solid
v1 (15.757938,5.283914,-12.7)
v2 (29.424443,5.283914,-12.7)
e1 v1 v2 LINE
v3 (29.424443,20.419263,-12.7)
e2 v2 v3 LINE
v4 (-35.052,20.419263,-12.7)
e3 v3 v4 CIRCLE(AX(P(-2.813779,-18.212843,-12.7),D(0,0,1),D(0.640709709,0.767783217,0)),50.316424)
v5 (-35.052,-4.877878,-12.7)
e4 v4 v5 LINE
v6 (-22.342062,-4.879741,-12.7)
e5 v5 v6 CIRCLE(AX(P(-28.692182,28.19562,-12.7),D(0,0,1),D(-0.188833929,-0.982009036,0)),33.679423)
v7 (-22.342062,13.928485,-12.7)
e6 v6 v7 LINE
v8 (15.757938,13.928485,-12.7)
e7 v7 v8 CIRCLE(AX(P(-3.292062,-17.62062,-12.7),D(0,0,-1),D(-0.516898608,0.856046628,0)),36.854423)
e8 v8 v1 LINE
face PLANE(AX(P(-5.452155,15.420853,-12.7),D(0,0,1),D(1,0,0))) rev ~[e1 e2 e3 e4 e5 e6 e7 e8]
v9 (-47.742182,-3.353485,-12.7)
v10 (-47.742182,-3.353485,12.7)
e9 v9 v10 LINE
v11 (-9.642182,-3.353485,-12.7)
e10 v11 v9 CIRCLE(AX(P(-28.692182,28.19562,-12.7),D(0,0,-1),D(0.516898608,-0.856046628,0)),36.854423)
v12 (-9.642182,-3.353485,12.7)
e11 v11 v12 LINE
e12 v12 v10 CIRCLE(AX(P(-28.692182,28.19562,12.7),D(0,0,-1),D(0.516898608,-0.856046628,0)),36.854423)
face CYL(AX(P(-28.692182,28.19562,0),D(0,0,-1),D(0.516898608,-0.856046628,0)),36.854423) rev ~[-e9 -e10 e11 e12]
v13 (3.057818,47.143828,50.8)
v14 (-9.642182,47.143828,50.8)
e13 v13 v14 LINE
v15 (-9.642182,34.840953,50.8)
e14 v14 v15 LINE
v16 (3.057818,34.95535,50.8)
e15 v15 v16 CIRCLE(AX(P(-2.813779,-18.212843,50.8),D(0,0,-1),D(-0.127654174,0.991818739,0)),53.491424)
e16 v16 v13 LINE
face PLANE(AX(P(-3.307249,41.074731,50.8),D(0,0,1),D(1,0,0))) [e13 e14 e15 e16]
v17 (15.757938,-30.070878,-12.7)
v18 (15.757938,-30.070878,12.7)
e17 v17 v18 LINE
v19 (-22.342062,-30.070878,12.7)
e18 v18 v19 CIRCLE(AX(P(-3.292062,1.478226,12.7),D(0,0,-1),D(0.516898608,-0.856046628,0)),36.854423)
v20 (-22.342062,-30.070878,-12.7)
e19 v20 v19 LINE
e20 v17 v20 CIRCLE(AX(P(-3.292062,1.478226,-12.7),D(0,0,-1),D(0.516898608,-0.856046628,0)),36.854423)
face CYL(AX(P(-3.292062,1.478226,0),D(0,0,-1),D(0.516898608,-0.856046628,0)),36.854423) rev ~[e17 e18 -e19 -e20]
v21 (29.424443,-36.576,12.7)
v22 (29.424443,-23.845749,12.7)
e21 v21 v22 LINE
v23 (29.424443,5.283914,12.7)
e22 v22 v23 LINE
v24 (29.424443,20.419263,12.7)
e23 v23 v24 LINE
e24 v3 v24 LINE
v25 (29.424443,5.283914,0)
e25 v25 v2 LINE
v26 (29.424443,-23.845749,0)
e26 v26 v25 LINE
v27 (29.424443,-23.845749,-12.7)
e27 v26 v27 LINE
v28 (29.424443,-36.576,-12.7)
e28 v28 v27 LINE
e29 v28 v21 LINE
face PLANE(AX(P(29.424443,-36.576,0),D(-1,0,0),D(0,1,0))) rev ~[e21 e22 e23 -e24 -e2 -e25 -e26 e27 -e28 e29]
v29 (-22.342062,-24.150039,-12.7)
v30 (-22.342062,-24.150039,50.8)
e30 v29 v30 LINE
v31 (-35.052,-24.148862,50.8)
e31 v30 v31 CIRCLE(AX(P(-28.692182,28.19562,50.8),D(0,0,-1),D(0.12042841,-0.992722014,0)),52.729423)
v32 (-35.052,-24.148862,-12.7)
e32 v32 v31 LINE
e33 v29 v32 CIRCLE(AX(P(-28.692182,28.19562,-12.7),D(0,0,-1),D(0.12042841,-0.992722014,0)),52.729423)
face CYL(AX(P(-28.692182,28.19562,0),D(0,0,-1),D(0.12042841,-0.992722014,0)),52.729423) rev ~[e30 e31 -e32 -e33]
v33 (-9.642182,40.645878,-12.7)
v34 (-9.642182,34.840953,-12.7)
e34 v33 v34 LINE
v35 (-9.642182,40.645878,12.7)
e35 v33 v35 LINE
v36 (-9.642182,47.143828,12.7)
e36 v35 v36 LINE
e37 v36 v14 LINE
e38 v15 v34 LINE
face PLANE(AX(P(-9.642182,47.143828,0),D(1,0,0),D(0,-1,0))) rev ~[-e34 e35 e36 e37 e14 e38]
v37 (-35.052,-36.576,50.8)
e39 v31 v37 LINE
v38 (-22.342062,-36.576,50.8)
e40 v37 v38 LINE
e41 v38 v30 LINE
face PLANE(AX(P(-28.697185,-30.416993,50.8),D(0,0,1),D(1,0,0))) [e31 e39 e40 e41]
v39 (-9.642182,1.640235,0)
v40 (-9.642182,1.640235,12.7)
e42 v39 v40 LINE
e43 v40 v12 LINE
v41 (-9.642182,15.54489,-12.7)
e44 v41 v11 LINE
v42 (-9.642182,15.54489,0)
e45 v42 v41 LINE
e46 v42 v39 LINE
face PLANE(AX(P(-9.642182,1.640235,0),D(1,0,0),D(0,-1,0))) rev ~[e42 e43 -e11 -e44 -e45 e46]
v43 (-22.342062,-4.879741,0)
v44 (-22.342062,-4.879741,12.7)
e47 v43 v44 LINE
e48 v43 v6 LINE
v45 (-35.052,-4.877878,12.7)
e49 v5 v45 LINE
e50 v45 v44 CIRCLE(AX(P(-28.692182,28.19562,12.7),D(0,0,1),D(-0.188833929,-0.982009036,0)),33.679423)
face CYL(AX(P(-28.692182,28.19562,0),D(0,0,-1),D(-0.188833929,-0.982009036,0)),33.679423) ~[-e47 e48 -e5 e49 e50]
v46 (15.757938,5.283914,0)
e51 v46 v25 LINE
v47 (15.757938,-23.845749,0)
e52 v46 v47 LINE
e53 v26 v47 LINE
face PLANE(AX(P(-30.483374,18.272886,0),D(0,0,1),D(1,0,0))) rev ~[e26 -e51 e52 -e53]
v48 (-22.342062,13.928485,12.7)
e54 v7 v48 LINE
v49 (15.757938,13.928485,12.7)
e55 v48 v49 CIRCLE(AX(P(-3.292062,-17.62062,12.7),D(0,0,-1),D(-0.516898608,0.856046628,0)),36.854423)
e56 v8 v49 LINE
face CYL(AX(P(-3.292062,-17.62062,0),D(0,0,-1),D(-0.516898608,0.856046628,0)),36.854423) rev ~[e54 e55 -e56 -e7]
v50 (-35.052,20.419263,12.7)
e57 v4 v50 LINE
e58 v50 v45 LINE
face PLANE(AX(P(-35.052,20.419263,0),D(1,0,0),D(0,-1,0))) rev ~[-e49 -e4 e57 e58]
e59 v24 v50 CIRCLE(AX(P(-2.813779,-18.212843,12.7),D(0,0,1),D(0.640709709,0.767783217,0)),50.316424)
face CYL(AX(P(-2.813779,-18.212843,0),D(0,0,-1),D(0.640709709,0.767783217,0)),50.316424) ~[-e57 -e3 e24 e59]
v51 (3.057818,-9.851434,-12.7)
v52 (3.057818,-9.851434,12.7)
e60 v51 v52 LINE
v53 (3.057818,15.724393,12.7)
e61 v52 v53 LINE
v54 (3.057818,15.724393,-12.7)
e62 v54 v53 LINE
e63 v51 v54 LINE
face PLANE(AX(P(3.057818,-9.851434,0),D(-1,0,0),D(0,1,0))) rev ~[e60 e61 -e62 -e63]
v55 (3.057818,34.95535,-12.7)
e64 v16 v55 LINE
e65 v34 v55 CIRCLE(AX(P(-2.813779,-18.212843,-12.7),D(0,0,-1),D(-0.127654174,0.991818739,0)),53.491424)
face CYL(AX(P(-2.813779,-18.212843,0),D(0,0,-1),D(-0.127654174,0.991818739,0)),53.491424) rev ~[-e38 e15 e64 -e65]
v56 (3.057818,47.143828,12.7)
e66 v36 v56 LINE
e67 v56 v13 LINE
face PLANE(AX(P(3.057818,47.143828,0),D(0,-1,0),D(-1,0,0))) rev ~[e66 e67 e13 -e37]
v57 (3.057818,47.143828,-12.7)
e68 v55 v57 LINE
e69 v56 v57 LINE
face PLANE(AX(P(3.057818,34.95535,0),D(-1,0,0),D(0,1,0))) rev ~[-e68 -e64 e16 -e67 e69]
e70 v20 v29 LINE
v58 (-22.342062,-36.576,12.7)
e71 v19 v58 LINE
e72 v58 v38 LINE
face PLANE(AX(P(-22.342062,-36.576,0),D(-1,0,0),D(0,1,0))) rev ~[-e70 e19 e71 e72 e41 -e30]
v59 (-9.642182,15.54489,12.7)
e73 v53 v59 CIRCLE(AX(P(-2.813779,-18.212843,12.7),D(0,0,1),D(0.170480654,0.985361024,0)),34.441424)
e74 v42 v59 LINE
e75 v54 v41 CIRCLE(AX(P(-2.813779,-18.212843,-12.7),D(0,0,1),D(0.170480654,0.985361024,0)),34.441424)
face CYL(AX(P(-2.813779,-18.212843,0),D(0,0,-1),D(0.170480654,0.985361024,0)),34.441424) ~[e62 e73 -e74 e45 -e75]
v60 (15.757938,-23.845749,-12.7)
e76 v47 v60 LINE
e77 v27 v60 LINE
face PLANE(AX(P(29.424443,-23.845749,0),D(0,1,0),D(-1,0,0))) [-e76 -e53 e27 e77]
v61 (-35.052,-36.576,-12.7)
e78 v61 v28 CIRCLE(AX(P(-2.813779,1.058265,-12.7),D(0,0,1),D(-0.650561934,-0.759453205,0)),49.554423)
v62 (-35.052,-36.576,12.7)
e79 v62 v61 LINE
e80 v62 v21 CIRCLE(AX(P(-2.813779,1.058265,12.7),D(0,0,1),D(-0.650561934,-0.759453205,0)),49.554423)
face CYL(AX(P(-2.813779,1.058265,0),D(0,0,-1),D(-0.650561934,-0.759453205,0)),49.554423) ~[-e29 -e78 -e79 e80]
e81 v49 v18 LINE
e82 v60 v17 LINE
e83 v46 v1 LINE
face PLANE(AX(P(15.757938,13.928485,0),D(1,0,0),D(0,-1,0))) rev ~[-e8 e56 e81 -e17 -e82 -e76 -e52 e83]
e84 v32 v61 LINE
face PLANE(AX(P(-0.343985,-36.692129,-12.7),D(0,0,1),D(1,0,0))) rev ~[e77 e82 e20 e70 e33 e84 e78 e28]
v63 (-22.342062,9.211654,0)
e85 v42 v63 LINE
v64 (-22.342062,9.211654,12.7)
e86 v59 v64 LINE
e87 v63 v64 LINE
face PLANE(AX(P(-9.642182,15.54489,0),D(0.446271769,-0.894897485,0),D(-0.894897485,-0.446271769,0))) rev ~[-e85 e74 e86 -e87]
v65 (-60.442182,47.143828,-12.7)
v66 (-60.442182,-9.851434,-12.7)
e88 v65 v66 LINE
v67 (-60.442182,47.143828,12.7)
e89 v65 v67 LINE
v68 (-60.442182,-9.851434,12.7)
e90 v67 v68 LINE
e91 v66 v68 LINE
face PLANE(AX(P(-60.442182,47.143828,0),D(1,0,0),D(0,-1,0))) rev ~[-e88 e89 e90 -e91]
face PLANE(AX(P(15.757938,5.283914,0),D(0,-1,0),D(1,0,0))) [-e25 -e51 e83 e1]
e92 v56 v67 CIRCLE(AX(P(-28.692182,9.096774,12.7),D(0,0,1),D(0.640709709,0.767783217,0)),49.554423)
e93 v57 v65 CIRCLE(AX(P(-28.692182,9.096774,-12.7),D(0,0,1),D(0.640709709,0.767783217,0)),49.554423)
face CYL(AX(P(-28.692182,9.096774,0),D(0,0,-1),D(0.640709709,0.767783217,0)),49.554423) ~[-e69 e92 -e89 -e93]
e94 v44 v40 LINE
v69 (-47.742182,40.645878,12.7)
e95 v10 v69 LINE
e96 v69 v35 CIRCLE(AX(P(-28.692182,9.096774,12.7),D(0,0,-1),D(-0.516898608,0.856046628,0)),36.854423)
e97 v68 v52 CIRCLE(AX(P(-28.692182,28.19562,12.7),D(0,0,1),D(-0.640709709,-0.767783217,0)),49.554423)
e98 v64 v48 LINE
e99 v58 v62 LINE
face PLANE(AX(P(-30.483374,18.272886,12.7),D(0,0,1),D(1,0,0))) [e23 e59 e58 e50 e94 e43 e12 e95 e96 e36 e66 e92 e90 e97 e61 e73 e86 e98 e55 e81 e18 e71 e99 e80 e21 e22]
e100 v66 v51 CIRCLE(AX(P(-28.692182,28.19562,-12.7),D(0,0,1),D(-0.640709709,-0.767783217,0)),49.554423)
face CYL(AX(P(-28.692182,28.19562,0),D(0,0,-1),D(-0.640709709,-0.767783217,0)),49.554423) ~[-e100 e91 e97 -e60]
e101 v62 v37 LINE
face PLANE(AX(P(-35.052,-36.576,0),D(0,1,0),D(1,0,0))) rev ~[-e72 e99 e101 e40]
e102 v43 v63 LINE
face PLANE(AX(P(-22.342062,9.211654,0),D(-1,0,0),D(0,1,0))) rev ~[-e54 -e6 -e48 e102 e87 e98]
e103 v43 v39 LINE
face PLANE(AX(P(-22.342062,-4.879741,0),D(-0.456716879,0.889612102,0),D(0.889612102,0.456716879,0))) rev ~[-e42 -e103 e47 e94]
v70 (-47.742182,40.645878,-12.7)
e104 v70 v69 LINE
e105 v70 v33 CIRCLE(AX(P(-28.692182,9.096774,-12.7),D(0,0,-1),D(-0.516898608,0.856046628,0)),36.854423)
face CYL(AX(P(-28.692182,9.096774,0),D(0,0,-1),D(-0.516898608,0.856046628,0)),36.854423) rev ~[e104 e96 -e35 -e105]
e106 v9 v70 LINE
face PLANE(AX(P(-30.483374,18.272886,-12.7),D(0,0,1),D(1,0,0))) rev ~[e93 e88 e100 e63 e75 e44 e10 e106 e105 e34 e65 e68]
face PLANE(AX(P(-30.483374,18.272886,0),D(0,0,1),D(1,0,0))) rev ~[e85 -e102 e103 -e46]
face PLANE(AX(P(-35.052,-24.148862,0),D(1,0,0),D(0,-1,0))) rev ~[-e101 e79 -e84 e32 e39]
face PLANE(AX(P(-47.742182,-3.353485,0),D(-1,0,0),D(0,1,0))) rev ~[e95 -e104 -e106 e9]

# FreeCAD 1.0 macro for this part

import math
import FreeCAD as App
import Part
import Sketcher
from FreeCAD import Vector
Q = App.Units.Quantity

doc = App.newDocument("Part")
params = doc.addObject("Spreadsheet::Sheet", "Params")
for row, (alias, value) in enumerate([
    ("pad1_length", "0.5 in"),
    ("sketch2_width", "0.5 in"),
    ("pad2_length", "2 in"),
    ("pad3_length", "0.5 in"),
    ("pad4_length", "0.5 in"),
    ("pad5_length", "2 in"),
    ("sketch6_width", "0.5 in"),
    ("pad6_length", "0.5 in"),
], start=1):
    params.set(f"A{row}", alias)
    params.set(f"B{row}", "=" + value)
    params.setAlias(f"B{row}", alias)

body = doc.addObject("PartDesign::Body", "Body")

sketch1 = body.newObject("Sketcher::SketchObject", "Sketch")
sketch1.AttachmentSupport = (doc.getObject("XY_Plane"), [""])
sketch1.MapMode = "FlatFace"
sketch1.addGeometry([
    Part.ArcOfCircle(Part.Circle(Vector(-28.692182, 9.096774, 0), Vector(0, 0, 1), 49.554423), math.radians(50.155239), math.radians(129.844761)),
    Part.LineSegment(Vector(-60.442182, 47.143828, 0), Vector(-60.442182, -9.851434, 0)),
    Part.ArcOfCircle(Part.Circle(Vector(-28.692182, 28.19562, 0), Vector(0, 0, 1), 49.554423), math.radians(-129.844761), math.radians(-50.155239)),
    Part.LineSegment(Vector(3.057818, -9.851434, 0), Vector(3.057818, 15.724393, 0)),
    Part.ArcOfCircle(Part.Circle(Vector(-2.813779, -18.212843, 0), Vector(0, 0, 1), 34.441424), math.radians(80.184234), math.radians(101.435306)),
    Part.LineSegment(Vector(-9.642182, 15.54489, 0), Vector(-9.642182, -3.353485, 0)),
    Part.ArcOfCircle(Part.Circle(Vector(-28.692182, 28.19562, 0), Vector(0, 0, 1), 36.854423), math.radians(-121.124445), math.radians(-58.875555)),
    Part.LineSegment(Vector(-47.742182, -3.353485, 0), Vector(-47.742182, 40.645878, 0)),
    Part.ArcOfCircle(Part.Circle(Vector(-28.692182, 9.096774, 0), Vector(0, 0, 1), 36.854423), math.radians(58.875555), math.radians(121.124445)),
    Part.LineSegment(Vector(-9.642182, 40.645878, 0), Vector(-9.642182, 34.840953, 0)),
    Part.ArcOfCircle(Part.Circle(Vector(-2.813779, -18.212843, 0), Vector(0, 0, 1), 53.491424), math.radians(83.698112), math.radians(97.334057)),
    Part.LineSegment(Vector(3.057818, 34.95535, 0), Vector(3.057818, 47.143828, 0)),
], False)
sketch1.addConstraint([
    Sketcher.Constraint("Coincident", 0, 2, 1, 1),
    Sketcher.Constraint("Coincident", 1, 2, 2, 1),
    Sketcher.Constraint("Coincident", 2, 2, 3, 1),
    Sketcher.Constraint("Coincident", 3, 2, 4, 1),
    Sketcher.Constraint("Coincident", 4, 2, 5, 1),
    Sketcher.Constraint("Coincident", 5, 2, 6, 2),
    Sketcher.Constraint("Coincident", 6, 1, 7, 1),
    Sketcher.Constraint("Coincident", 7, 2, 8, 2),
    Sketcher.Constraint("Coincident", 8, 1, 9, 1),
    Sketcher.Constraint("Coincident", 9, 2, 10, 2),
    Sketcher.Constraint("Coincident", 10, 1, 11, 1),
    Sketcher.Constraint("Coincident", 11, 2, 0, 1),
    Sketcher.Constraint("Vertical", 1),
    Sketcher.Constraint("Vertical", 3),
    Sketcher.Constraint("Vertical", 5),
    Sketcher.Constraint("Vertical", 7),
    Sketcher.Constraint("Vertical", 9),
    Sketcher.Constraint("Vertical", 11),
    Sketcher.Constraint("Coincident", 6, 3, 2, 3),
    Sketcher.Constraint("Coincident", 8, 3, 0, 3),
    Sketcher.Constraint("Coincident", 10, 3, 4, 3),
    Sketcher.Constraint("Equal", 0, 2),
    Sketcher.Constraint("Equal", 6, 8),
    Sketcher.Constraint("Horizontal", 1, 2, 2, 2),
    Sketcher.Constraint("Horizontal", 5, 2, 6, 1),
    Sketcher.Constraint("Horizontal", 7, 2, 8, 1),
    Sketcher.Constraint("Horizontal", 0, 2, 11, 2),
    Sketcher.Constraint("Vertical", 0, 3, 2, 3),
    Sketcher.Constraint("DistanceX", 4, 2, 3, 2, Q("0.5 in")),
    Sketcher.Constraint("DistanceX", 0, 2, 2, 3, Q("1.25 in")),
    Sketcher.Constraint("Radius", 0, 49.554423),
    Sketcher.Constraint("Radius", 4, 34.441424),
    Sketcher.Constraint("Radius", 6, 36.854423),
    Sketcher.Constraint("Radius", 10, 53.491424),
    Sketcher.Constraint("DistanceY", 11, 1, 11, 2, 12.188478),
    Sketcher.Constraint("DistanceY", 1, 2, 1, 1, 56.995263),
    Sketcher.Constraint("DistanceY", 3, 1, 3, 2, 25.575828),
    Sketcher.Constraint("DistanceY", -1, 1, 2, 3, 28.19562),
    Sketcher.Constraint("DistanceX", 4, 3, -1, 1, 2.813779),
])
pad1 = body.newObject("PartDesign::Pad", "Pad")
pad1.Profile = sketch1
pad1.setExpression("Length", "Params.pad1_length")
pad1.Reversed = True

sketch2 = body.newObject("Sketcher::SketchObject", "Sketch001")
sketch2.AttachmentSupport = (doc.getObject("XY_Plane"), [""])
sketch2.MapMode = "FlatFace"
sketch2.addGeometry([
    Part.LineSegment(Vector(3.057818, 34.95535, 0), Vector(3.057818, 47.143828, 0)),
    Part.LineSegment(Vector(3.057818, 47.143828, 0), Vector(-9.642182, 47.143828, 0)),
    Part.LineSegment(Vector(-9.642182, 47.143828, 0), Vector(-9.642182, 34.840953, 0)),
    Part.ArcOfCircle(Part.Circle(Vector(-2.813779, -18.212843, 0), Vector(0, 0, 1), 53.491424), math.radians(83.698112), math.radians(97.334057)),
], False)
sketch2.addConstraint([
    Sketcher.Constraint("Coincident", 0, 2, 1, 1),
    Sketcher.Constraint("Coincident", 1, 2, 2, 1),
    Sketcher.Constraint("Coincident", 2, 2, 3, 2),
    Sketcher.Constraint("Coincident", 3, 1, 0, 1),
    Sketcher.Constraint("Vertical", 0),
    Sketcher.Constraint("Horizontal", 1),
    Sketcher.Constraint("Vertical", 2),
    Sketcher.Constraint("DistanceX", 1, 2, 1, 1, Q("0.5 in")),
    Sketcher.Constraint("Radius", 3, 53.491424),
    Sketcher.Constraint("DistanceY", 0, 1, 0, 2, 12.188478),
    Sketcher.Constraint("DistanceY", 2, 2, 2, 1, 12.302875),
    Sketcher.Constraint("DistanceX", 3, 3, -1, 1, 2.813779),
    Sketcher.Constraint("DistanceY", -1, 1, 0, 2, 47.143828),
])
sketch2.setExpression("Constraints[7]", "Params.sketch2_width")
pad2 = body.newObject("PartDesign::Pad", "Pad001")
pad2.Profile = sketch2
pad2.setExpression("Length", "Params.pad2_length")
body2 = doc.addObject("PartDesign::Body", "Body001")

sketch3 = body2.newObject("Sketcher::SketchObject", "Sketch002")
sketch3.AttachmentSupport = (doc.getObject("XY_Plane001"), [""])
sketch3.MapMode = "FlatFace"
sketch3.addGeometry([
    Part.LineSegment(Vector(-22.342062, -4.879741, 0), Vector(-22.342062, 13.928485, 0)),
    Part.ArcOfCircle(Part.Circle(Vector(-3.292062, -17.62062, 0), Vector(0, 0, 1), 36.854423), math.radians(58.875555), math.radians(121.124445)),
    Part.LineSegment(Vector(15.757938, 13.928485, 0), Vector(15.757938, 5.283914, 0)),
    Part.LineSegment(Vector(15.757938, 5.283914, 0), Vector(29.424443, 5.283914, 0)),
    Part.LineSegment(Vector(29.424443, 5.283914, 0), Vector(29.424443, 20.419263, 0)),
    Part.ArcOfCircle(Part.Circle(Vector(-2.813779, -18.212843, 0), Vector(0, 0, 1), 50.316424), math.radians(50.155239), math.radians(129.844761)),
    Part.LineSegment(Vector(-35.052, 20.419263, 0), Vector(-35.052, -4.877878, 0)),
    Part.ArcOfCircle(Part.Circle(Vector(-28.692182, 28.19562, 0), Vector(0, 0, 1), 33.679423), math.radians(-100.884741), math.radians(-79.132057)),
], False)
sketch3.addConstraint([
    Sketcher.Constraint("Coincident", 0, 2, 1, 2),
    Sketcher.Constraint("Coincident", 1, 1, 2, 1),
    Sketcher.Constraint("Coincident", 2, 2, 3, 1),
    Sketcher.Constraint("Coincident", 3, 2, 4, 1),
    Sketcher.Constraint("Coincident", 4, 2, 5, 1),
    Sketcher.Constraint("Coincident", 5, 2, 6, 1),
    Sketcher.Constraint("Coincident", 6, 2, 7, 1),
    Sketcher.Constraint("Coincident", 7, 2, 0, 1),
    Sketcher.Constraint("Vertical", 0),
    Sketcher.Constraint("Vertical", 2),
    Sketcher.Constraint("Horizontal", 3),
    Sketcher.Constraint("Vertical", 4),
    Sketcher.Constraint("Vertical", 6),
    Sketcher.Constraint("Horizontal", 0, 2, 1, 1),
    Sketcher.Constraint("Horizontal", 4, 2, 5, 2),
    Sketcher.Constraint("DistanceX", 0, 2, 1, 1, Q("1.5 in")),
    Sketcher.Constraint("DistanceX", 5, 2, -1, 1, Q("1.38 in")),
    Sketcher.Constraint("Radius", 1, 36.854423),
    Sketcher.Constraint("Radius", 5, 50.316424),
    Sketcher.Constraint("Radius", 7, 33.679423),
    Sketcher.Constraint("DistanceY", 2, 2, 2, 1, 8.644571),
    Sketcher.Constraint("DistanceY", 4, 1, 4, 2, 15.135348),
    Sketcher.Constraint("DistanceY", 6, 2, 6, 1, 25.29714),
    Sketcher.Constraint("DistanceX", 3, 1, 3, 2, 13.666504),
    Sketcher.Constraint("DistanceY", 0, 1, 0, 2, 18.808226),
    Sketcher.Constraint("DistanceX", 1, 3, -1, 1, 3.292062),
    Sketcher.Constraint("DistanceY", 1, 3, -1, 1, 17.62062),
])
pad3 = body2.newObject("PartDesign::Pad", "Pad002")
pad3.Profile = sketch3
pad3.setExpression("Length", "Params.pad3_length")
pad3.Reversed = True
body3 = doc.addObject("PartDesign::Body", "Body002")

sketch4 = body3.newObject("Sketcher::SketchObject", "Sketch003")
sketch4.AttachmentSupport = (doc.getObject("XY_Plane002"), [""])
sketch4.MapMode = "FlatFace"
sketch4.addGeometry([
    Part.LineSegment(Vector(29.424443, -23.845749, 0), Vector(15.757938, -23.845749, 0)),
    Part.LineSegment(Vector(15.757938, -23.845749, 0), Vector(15.757938, -30.070878, 0)),
    Part.ArcOfCircle(Part.Circle(Vector(-3.292062, 1.478226, 0), Vector(0, 0, 1), 36.854423), math.radians(-121.124445), math.radians(-58.875555)),
    Part.LineSegment(Vector(-22.342062, -30.070878, 0), Vector(-22.342062, -24.150039, 0)),
    Part.ArcOfCircle(Part.Circle(Vector(-28.692182, 28.19562, 0), Vector(0, 0, 1), 52.729423), math.radians(-96.927442), math.radians(-83.083172)),
    Part.LineSegment(Vector(-35.052, -24.148862, 0), Vector(-35.052, -36.576, 0)),
    Part.ArcOfCircle(Part.Circle(Vector(-2.813779, 1.058265, 0), Vector(0, 0, 1), 49.554423), math.radians(-130.583983), math.radians(-49.416017)),
    Part.LineSegment(Vector(29.424443, -36.576, 0), Vector(29.424443, -23.845749, 0)),
], False)
sketch4.addConstraint([
    Sketcher.Constraint("Coincident", 0, 2, 1, 1),
    Sketcher.Constraint("Coincident", 1, 2, 2, 2),
    Sketcher.Constraint("Coincident", 2, 1, 3, 1),
    Sketcher.Constraint("Coincident", 3, 2, 4, 2),
    Sketcher.Constraint("Coincident", 4, 1, 5, 1),
    Sketcher.Constraint("Coincident", 5, 2, 6, 1),
    Sketcher.Constraint("Coincident", 6, 2, 7, 1),
    Sketcher.Constraint("Coincident", 7, 2, 0, 1),
    Sketcher.Constraint("Horizontal", 0),
    Sketcher.Constraint("Vertical", 1),
    Sketcher.Constraint("Vertical", 3),
    Sketcher.Constraint("Vertical", 5),
    Sketcher.Constraint("Vertical", 7),
    Sketcher.Constraint("Horizontal", 1, 2, 2, 1),
    Sketcher.Constraint("Horizontal", 5, 2, 6, 2),
    Sketcher.Constraint("DistanceX", 2, 1, 1, 2, Q("1.5 in")),
    Sketcher.Constraint("DistanceX", 4, 1, -1, 1, Q("1.38 in")),
    Sketcher.Constraint("DistanceY", 5, 2, -1, 1, Q("1.44 in")),
    Sketcher.Constraint("Radius", 2, 36.854423),
    Sketcher.Constraint("Radius", 4, 52.729423),
    Sketcher.Constraint("Radius", 6, 49.554423),
    Sketcher.Constraint("DistanceY", 1, 2, 1, 1, 6.225129),
    Sketcher.Constraint("DistanceY", 3, 1, 3, 2, 5.920839),
    Sketcher.Constraint("DistanceY", 5, 2, 5, 1, 12.427138),
    Sketcher.Constraint("DistanceY", 7, 1, 7, 2, 12.730251),
    Sketcher.Constraint("DistanceY", 1, 2, 4, 3, 58.266498),
    Sketcher.Constraint("DistanceX", 0, 2, 0, 1, 13.666504),
])
pad4 = body3.newObject("PartDesign::Pad", "Pad003")
pad4.Profile = sketch4
pad4.setExpression("Length", "Params.pad4_length")
pad4.Reversed = True

sketch5 = body3.newObject("Sketcher::SketchObject", "Sketch004")
sketch5.AttachmentSupport = (doc.getObject("XY_Plane002"), [""])
sketch5.MapMode = "FlatFace"
sketch5.addGeometry([
    Part.LineSegment(Vector(-22.342062, -36.576, 0), Vector(-22.342062, -24.150039, 0)),
    Part.ArcOfCircle(Part.Circle(Vector(-28.692182, 28.19562, 0), Vector(0, 0, 1), 52.729423), math.radians(-96.927442), math.radians(-83.083172)),
    Part.LineSegment(Vector(-35.052, -24.148862, 0), Vector(-35.052, -36.576, 0)),
    Part.LineSegment(Vector(-35.052, -36.576, 0), Vector(-22.342062, -36.576, 0)),
], False)
sketch5.addConstraint([
    Sketcher.Constraint("Coincident", 0, 2, 1, 2),
    Sketcher.Constraint("Coincident", 1, 1, 2, 1),
    Sketcher.Constraint("Coincident", 2, 2, 3, 1),
    Sketcher.Constraint("Coincident", 3, 2, 0, 1),
    Sketcher.Constraint("Vertical", 0),
    Sketcher.Constraint("Vertical", 2),
    Sketcher.Constraint("Horizontal", 3),
    Sketcher.Constraint("DistanceX", 1, 1, -1, 1, Q("1.38 in")),
    Sketcher.Constraint("DistanceY", 2, 2, -1, 1, Q("1.44 in")),
    Sketcher.Constraint("Radius", 1, 52.729423),
    Sketcher.Constraint("DistanceX", 3, 1, 3, 2, 12.709938),
    Sketcher.Constraint("DistanceY", 0, 1, 0, 2, 12.425961),
    Sketcher.Constraint("DistanceY", 2, 2, 2, 1, 12.427138),
])
pad5 = body3.newObject("PartDesign::Pad", "Pad004")
pad5.Profile = sketch5
pad5.setExpression("Length", "Params.pad5_length")
body.AllowCompound = True
doc.recompute()

boolean = body.newObject("PartDesign::Boolean", "Boolean")
boolean.Type = "Fuse"
boolean.addObjects([body2])
doc.recompute()

boolean2 = body.newObject("PartDesign::Boolean", "Boolean001")
boolean2.Type = "Fuse"
boolean2.addObjects([body3])

sketch6 = body.newObject("Sketcher::SketchObject", "Sketch005")
sketch6.AttachmentSupport = (doc.getObject("XY_Plane"), [""])
sketch6.MapMode = "FlatFace"
sketch6.addGeometry([
    Part.ArcOfCircle(Part.Circle(Vector(-28.692182, 9.096774, 0), Vector(0, 0, 1), 49.554423), math.radians(50.155239), math.radians(129.844761)),
    Part.LineSegment(Vector(-60.442182, 47.143828, 0), Vector(-60.442182, -9.851434, 0)),
    Part.ArcOfCircle(Part.Circle(Vector(-28.692182, 28.19562, 0), Vector(0, 0, 1), 49.554423), math.radians(-129.844761), math.radians(-50.155239)),
    Part.LineSegment(Vector(3.057818, -9.851434, 0), Vector(3.057818, 15.724393, 0)),
    Part.ArcOfCircle(Part.Circle(Vector(-2.813779, -18.212843, 0), Vector(0, 0, 1), 34.441424), math.radians(80.184234), math.radians(101.435306)),
    Part.LineSegment(Vector(-9.642182, 15.54489, 0), Vector(-22.342062, 9.211654, 0)),
    Part.LineSegment(Vector(-22.342062, 9.211654, 0), Vector(-22.342062, 13.928485, 0)),
    Part.ArcOfCircle(Part.Circle(Vector(-3.292062, -17.62062, 0), Vector(0, 0, 1), 36.854423), math.radians(58.875555), math.radians(121.124445)),
    Part.LineSegment(Vector(15.757938, 13.928485, 0), Vector(15.757938, -30.070878, 0)),
    Part.ArcOfCircle(Part.Circle(Vector(-3.292062, 1.478226, 0), Vector(0, 0, 1), 36.854423), math.radians(-121.124445), math.radians(-58.875555)),
    Part.LineSegment(Vector(-22.342062, -30.070878, 0), Vector(-22.342062, -36.576, 0)),
    Part.LineSegment(Vector(-22.342062, -36.576, 0), Vector(-35.052, -36.576, 0)),
    Part.ArcOfCircle(Part.Circle(Vector(-2.813779, 1.058265, 0), Vector(0, 0, 1), 49.554423), math.radians(-130.583983), math.radians(-49.416017)),
    Part.LineSegment(Vector(29.424443, -36.576, 0), Vector(29.424443, -23.845749, 0)),
    Part.LineSegment(Vector(29.424443, -23.845749, 0), Vector(29.424443, 5.283914, 0)),
    Part.LineSegment(Vector(29.424443, 5.283914, 0), Vector(29.424443, 20.419263, 0)),
    Part.ArcOfCircle(Part.Circle(Vector(-2.813779, -18.212843, 0), Vector(0, 0, 1), 50.316424), math.radians(50.155239), math.radians(129.844761)),
    Part.LineSegment(Vector(-35.052, 20.419263, 0), Vector(-35.052, -4.877878, 0)),
    Part.ArcOfCircle(Part.Circle(Vector(-28.692182, 28.19562, 0), Vector(0, 0, 1), 33.679423), math.radians(-100.884741), math.radians(-79.132057)),
    Part.LineSegment(Vector(-22.342062, -4.879741, 0), Vector(-9.642182, 1.640235, 0)),
    Part.LineSegment(Vector(-9.642182, 1.640235, 0), Vector(-9.642182, -3.353485, 0)),
    Part.ArcOfCircle(Part.Circle(Vector(-28.692182, 28.19562, 0), Vector(0, 0, 1), 36.854423), math.radians(-121.124445), math.radians(-58.875555)),
    Part.LineSegment(Vector(-47.742182, -3.353485, 0), Vector(-47.742182, 40.645878, 0)),
    Part.ArcOfCircle(Part.Circle(Vector(-28.692182, 9.096774, 0), Vector(0, 0, 1), 36.854423), math.radians(58.875555), math.radians(121.124445)),
    Part.LineSegment(Vector(-9.642182, 40.645878, 0), Vector(-9.642182, 47.143828, 0)),
    Part.LineSegment(Vector(-9.642182, 47.143828, 0), Vector(3.057818, 47.143828, 0)),
], False)
sketch6.addConstraint([
    Sketcher.Constraint("Coincident", 0, 2, 1, 1),
    Sketcher.Constraint("Coincident", 1, 2, 2, 1),
    Sketcher.Constraint("Coincident", 2, 2, 3, 1),
    Sketcher.Constraint("Coincident", 3, 2, 4, 1),
    Sketcher.Constraint("Coincident", 4, 2, 5, 1),
    Sketcher.Constraint("Coincident", 5, 2, 6, 1),
    Sketcher.Constraint("Coincident", 6, 2, 7, 2),
    Sketcher.Constraint("Coincident", 7, 1, 8, 1),
    Sketcher.Constraint("Coincident", 8, 2, 9, 2),
    Sketcher.Constraint("Coincident", 9, 1, 10, 1),
    Sketcher.Constraint("Coincident", 10, 2, 11, 1),
    Sketcher.Constraint("Coincident", 11, 2, 12, 1),
    Sketcher.Constraint("Coincident", 12, 2, 13, 1),
    Sketcher.Constraint("Coincident", 13, 2, 14, 1),
    Sketcher.Constraint("Coincident", 14, 2, 15, 1),
    Sketcher.Constraint("Coincident", 15, 2, 16, 1),
    Sketcher.Constraint("Coincident", 16, 2, 17, 1),
    Sketcher.Constraint("Coincident", 17, 2, 18, 1),
    Sketcher.Constraint("Coincident", 18, 2, 19, 1),
    Sketcher.Constraint("Coincident", 19, 2, 20, 1),
    Sketcher.Constraint("Coincident", 20, 2, 21, 2),
    Sketcher.Constraint("Coincident", 21, 1, 22, 1),
    Sketcher.Constraint("Coincident", 22, 2, 23, 2),
    Sketcher.Constraint("Coincident", 23, 1, 24, 1),
    Sketcher.Constraint("Coincident", 24, 2, 25, 1),
    Sketcher.Constraint("Coincident", 25, 2, 0, 1),
    Sketcher.Constraint("Vertical", 1),
    Sketcher.Constraint("Vertical", 3),
    Sketcher.Constraint("Vertical", 6),
    Sketcher.Constraint("Vertical", 8),
    Sketcher.Constraint("Vertical", 10),
    Sketcher.Constraint("Horizontal", 11),
    Sketcher.Constraint("Vertical", 13),
    Sketcher.Constraint("Vertical", 14),
    Sketcher.Constraint("Vertical", 15),
    Sketcher.Constraint("Vertical", 17),
    Sketcher.Constraint("Vertical", 20),
    Sketcher.Constraint("Vertical", 22),
    Sketcher.Constraint("Vertical", 24),
    Sketcher.Constraint("Horizontal", 25),
    Sketcher.Constraint("Coincident", 16, 3, 4, 3),
    Sketcher.Constraint("Coincident", 18, 3, 2, 3),
    Sketcher.Constraint("Coincident", 21, 3, 2, 3),
    Sketcher.Constraint("Coincident", 23, 3, 0, 3),
    Sketcher.Constraint("Equal", 0, 2),
    Sketcher.Constraint("Equal", 7, 9),
    Sketcher.Constraint("Equal", 2, 12),
    Sketcher.Constraint("Equal", 9, 21),
    Sketcher.Constraint("Equal", 21, 23),
    Sketcher.Constraint("Horizontal", 1, 2, 2, 2),
    Sketcher.Constraint("Horizontal", 6, 2, 7, 1),
    Sketcher.Constraint("Horizontal", 8, 2, 9, 1),
    Sketcher.Constraint("Horizontal", 11, 2, 12, 2),
    Sketcher.Constraint("Horizontal", 15, 2, 16, 2),
    Sketcher.Constraint("Horizontal", 20, 2, 21, 1),
    Sketcher.Constraint("Horizontal", 22, 2, 23, 1),
    Sketcher.Constraint("Horizontal", 0, 2, 24, 2),
    Sketcher.Constraint("Vertical", 0, 3, 2, 3),
    Sketcher.Constraint("Vertical", 7, 3, 9, 3),
    Sketcher.Constraint("Vertical", 4, 3, 12, 3),
    Sketcher.Constraint("Vertical", 10, 2, 18, 2),
    Sketcher.Constraint("Vertical", 4, 2, 19, 2),
    Sketcher.Constraint("Equal", 8, 22),
    Sketcher.Constraint("DistanceX", 25, 1, 25, 2, Q("0.5 in")),
    Sketcher.Constraint("DistanceY", 10, 2, -1, 1, Q("1.44 in")),
    Sketcher.Constraint("DistanceX", 11, 2, -1, 1, Q("1.38 in")),
    Sketcher.Constraint("DistanceX", 0, 2, 2, 3, Q("1.25 in")),
    Sketcher.Constraint("DistanceX", 9, 3, 7, 1, Q("0.75 in")),
    Sketcher.Constraint("Radius", 0, 49.554423),
    Sketcher.Constraint("Radius", 4, 34.441424),
    Sketcher.Constraint("Radius", 7, 36.854423),
    Sketcher.Constraint("Radius", 16, 50.316424),
    Sketcher.Constraint("Radius", 18, 33.679423),
    Sketcher.Constraint("DistanceX", 11, 2, 11, 1, 12.709938),
    Sketcher.Constraint("DistanceY", 6, 1, 6, 2, 4.716831),
    Sketcher.Constraint("DistanceY", 10, 2, 10, 1, 6.505122),
    Sketcher.Constraint("DistanceY", 13, 1, 13, 2, 12.730251),
    Sketcher.Constraint("DistanceY", 15, 1, 15, 2, 15.135348),
    Sketcher.Constraint("DistanceY", 17, 2, 17, 1, 25.29714),
    Sketcher.Constraint("DistanceY", 20, 2, 20, 1, 4.993719),
    Sketcher.Constraint("DistanceY", 2, 2, 12, 3, 10.9097),
    Sketcher.Constraint("Distance", 19, 14.275749),
    Sketcher.Constraint("DistanceY", 1, 2, 1, 1, 56.995263),
    Sketcher.Constraint("DistanceY", 3, 1, 3, 2, 25.575828),
])
sketch6.setExpression("Constraints[63]", "Params.sketch6_width")
pad6 = body.newObject("PartDesign::Pad", "Pad005")
pad6.Profile = sketch6
pad6.setExpression("Length", "Params.pad6_length")

doc.recompute()
